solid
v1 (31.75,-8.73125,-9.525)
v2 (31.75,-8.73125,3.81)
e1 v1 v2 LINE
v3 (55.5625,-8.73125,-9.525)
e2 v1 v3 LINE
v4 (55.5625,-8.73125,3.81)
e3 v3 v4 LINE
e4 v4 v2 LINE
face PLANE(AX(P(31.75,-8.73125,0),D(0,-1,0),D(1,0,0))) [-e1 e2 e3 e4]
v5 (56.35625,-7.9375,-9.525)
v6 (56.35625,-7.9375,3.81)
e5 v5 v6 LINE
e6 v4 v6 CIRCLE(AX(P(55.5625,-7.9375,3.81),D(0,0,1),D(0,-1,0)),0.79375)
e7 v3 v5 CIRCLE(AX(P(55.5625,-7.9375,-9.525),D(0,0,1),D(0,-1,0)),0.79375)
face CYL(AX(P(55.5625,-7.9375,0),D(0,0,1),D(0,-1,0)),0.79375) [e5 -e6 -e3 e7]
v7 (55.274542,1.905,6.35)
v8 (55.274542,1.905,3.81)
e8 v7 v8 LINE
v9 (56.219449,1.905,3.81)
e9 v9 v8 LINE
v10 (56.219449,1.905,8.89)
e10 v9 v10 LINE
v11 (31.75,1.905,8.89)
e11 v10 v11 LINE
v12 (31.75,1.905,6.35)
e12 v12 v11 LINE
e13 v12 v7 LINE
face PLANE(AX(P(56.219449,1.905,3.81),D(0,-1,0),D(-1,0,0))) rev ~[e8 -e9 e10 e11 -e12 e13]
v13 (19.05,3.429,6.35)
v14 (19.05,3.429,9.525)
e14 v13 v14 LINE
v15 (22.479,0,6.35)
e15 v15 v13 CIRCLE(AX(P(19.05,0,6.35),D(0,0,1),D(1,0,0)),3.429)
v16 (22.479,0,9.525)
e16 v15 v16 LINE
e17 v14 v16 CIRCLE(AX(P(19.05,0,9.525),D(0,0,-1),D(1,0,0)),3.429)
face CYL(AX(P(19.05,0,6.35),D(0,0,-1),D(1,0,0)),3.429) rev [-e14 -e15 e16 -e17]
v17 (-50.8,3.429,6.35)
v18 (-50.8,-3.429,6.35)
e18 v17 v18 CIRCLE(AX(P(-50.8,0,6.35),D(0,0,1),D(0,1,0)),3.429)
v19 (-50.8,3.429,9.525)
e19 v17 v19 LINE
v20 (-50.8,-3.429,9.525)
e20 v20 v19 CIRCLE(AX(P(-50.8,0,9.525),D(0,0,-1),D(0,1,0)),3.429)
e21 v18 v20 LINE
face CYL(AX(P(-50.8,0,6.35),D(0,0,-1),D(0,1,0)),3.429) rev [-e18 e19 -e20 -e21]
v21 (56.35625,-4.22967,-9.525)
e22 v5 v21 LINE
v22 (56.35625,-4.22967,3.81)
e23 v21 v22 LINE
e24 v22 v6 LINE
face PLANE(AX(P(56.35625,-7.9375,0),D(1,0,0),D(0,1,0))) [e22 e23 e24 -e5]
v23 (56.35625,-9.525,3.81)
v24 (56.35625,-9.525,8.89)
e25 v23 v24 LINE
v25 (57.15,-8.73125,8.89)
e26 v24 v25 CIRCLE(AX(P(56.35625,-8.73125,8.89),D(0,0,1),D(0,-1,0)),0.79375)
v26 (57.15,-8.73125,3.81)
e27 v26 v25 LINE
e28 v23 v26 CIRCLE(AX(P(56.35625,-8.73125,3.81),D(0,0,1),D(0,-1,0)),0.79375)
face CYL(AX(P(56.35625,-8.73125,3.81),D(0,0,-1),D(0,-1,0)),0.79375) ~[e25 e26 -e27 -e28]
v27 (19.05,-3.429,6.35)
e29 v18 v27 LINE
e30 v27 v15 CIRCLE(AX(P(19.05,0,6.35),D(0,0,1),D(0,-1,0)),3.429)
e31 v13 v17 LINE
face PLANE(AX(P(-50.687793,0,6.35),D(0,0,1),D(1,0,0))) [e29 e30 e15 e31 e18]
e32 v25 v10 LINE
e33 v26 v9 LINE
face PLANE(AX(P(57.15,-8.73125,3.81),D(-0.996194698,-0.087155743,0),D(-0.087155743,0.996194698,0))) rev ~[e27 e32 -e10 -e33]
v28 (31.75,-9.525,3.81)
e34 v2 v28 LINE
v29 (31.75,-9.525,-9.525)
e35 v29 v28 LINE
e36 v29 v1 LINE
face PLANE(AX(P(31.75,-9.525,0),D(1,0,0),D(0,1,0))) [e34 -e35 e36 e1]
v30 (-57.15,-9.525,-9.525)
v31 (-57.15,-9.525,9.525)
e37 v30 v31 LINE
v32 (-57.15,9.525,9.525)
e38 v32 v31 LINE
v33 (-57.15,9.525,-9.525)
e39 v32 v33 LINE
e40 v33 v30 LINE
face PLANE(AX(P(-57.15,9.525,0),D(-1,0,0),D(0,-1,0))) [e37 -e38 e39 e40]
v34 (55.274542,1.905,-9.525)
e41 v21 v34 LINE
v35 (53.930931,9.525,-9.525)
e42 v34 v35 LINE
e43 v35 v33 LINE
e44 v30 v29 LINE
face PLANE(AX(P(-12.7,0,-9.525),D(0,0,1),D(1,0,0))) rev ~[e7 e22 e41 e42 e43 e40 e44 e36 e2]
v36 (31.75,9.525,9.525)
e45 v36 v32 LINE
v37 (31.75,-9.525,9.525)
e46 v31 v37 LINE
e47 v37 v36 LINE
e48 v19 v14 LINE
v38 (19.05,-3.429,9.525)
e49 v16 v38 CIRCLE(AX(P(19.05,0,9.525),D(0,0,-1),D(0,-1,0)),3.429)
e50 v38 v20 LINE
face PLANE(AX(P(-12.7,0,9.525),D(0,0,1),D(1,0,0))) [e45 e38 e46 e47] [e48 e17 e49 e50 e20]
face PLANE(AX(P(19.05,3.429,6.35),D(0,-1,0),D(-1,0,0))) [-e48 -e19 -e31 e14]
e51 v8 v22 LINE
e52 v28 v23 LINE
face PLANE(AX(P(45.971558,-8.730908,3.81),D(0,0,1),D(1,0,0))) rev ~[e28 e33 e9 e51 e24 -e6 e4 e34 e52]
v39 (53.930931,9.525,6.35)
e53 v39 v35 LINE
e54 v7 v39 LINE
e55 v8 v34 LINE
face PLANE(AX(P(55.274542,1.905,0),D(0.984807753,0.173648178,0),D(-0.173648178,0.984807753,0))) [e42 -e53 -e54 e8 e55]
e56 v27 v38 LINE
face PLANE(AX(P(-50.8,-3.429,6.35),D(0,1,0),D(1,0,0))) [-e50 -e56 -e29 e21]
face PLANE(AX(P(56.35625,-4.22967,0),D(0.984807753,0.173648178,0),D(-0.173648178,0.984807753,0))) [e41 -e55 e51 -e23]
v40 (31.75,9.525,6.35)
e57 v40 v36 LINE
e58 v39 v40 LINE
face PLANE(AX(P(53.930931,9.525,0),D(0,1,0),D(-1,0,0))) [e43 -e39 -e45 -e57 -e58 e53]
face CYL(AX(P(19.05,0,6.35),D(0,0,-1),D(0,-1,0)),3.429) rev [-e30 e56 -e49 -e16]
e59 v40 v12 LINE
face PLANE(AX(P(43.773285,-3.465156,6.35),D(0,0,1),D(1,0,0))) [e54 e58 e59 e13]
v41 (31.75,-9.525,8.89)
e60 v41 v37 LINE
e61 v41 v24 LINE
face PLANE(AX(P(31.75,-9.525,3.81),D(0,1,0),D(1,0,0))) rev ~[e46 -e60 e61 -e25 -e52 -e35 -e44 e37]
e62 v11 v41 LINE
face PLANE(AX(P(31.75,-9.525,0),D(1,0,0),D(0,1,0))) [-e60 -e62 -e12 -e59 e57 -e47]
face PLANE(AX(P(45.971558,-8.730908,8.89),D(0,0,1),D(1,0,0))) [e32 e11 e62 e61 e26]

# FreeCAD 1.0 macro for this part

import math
import FreeCAD as App
import Part
import Sketcher

V = App.Vector
Q = App.Units.Quantity

doc = App.newDocument("Part")
body = doc.addObject("PartDesign::Body", "Body")

# Sketch on XY plane
sketch1 = doc.addObject("Sketcher::SketchObject", "Sketch")
body.addObject(sketch1)
sketch1.AttachmentSupport = (doc.XY_Plane, [""])
sketch1.MapMode = "FlatFace"
sketch1.addGeometry([
    Part.LineSegment(V(-57.15, 9.525, 0), V(-57.15, -9.525, 0)),  # 0
    Part.LineSegment(V(-57.15, -9.525, 0), V(31.75, -9.525, 0)),  # 1
    Part.LineSegment(V(31.75, -9.525, 0), V(31.75, -8.73125, 0)),  # 2
    Part.LineSegment(V(31.75, -8.73125, 0), V(55.5625, -8.73125, 0)),  # 3
    Part.ArcOfCircle(Part.Circle(V(55.5625, -7.9375, 0), V(0, 0, 1), 0.79375), math.radians(-90), math.radians(0)),  # 4
    Part.LineSegment(V(56.35625, -7.9375, 0), V(56.35625, -4.22967, 0)),  # 5
    Part.LineSegment(V(56.35625, -4.22967, 0), V(55.274542, 1.905, 0)),  # 6
    Part.LineSegment(V(55.274542, 1.905, 0), V(53.930931, 9.525, 0)),  # 7
    Part.LineSegment(V(53.930931, 9.525, 0), V(-57.15, 9.525, 0)),  # 8
], False)
sketch1.addConstraint([
    Sketcher.Constraint("Coincident", 0, 2, 1, 1),
    Sketcher.Constraint("Coincident", 1, 2, 2, 1),
    Sketcher.Constraint("Coincident", 2, 2, 3, 1),
    Sketcher.Constraint("Tangent", 3, 2, 4, 1),
    Sketcher.Constraint("Tangent", 4, 2, 5, 1),
    Sketcher.Constraint("Coincident", 5, 2, 6, 1),
    Sketcher.Constraint("Coincident", 6, 2, 7, 1),
    Sketcher.Constraint("Coincident", 7, 2, 8, 1),
    Sketcher.Constraint("Coincident", 8, 2, 0, 1),
    Sketcher.Constraint("Vertical", 0),
    Sketcher.Constraint("Horizontal", 1),
    Sketcher.Constraint("Vertical", 2),
    Sketcher.Constraint("Horizontal", 3),
    Sketcher.Constraint("Vertical", 5),
    Sketcher.Constraint("Horizontal", 8),
    Sketcher.Constraint("Parallel", 6, 7),
    Sketcher.Constraint("DistanceX", 1, 1, 1, 2, Q("3.5 in")),
    Sketcher.Constraint("Angle", 6, Q("100 deg")),
    Sketcher.Constraint("Radius", 4, Q("0.03125 in")),
    Sketcher.Constraint("DistanceY", 0, 2, 0, 1, Q("0.75 in")),
    Sketcher.Constraint("DistanceY", 6, 2, 7, 2, Q("0.3 in")),
    Sketcher.Constraint("DistanceX", 3, 1, 3, 2, Q("0.9375 in")),
    Sketcher.Constraint("DistanceY", 2, 1, 2, 2, Q("0.03125 in")),
    Sketcher.Constraint("DistanceX", 0, 2, -1, 1, Q("2.25 in")),
    Sketcher.Constraint("DistanceY", 4, 3, -1, 1, Q("0.3125 in")),
    Sketcher.Constraint("DistanceX", 8, 2, 8, 1, Q("111.080931 mm")),
])
pad1 = doc.addObject("PartDesign::Pad", "Pad")
body.addObject(pad1)
pad1.Profile = sketch1
pad1.Length = Q("0.75 in")
pad1.Midplane = True

# Sketch on XY plane
sketch2 = doc.addObject("Sketcher::SketchObject", "Sketch001")
body.addObject(sketch2)
sketch2.AttachmentSupport = (doc.XY_Plane, [""])
sketch2.MapMode = "FlatFace"
sketch2.AttachmentOffset = App.Placement(V(0, 0, 0.25 * 25.4), App.Rotation())
sketch2.addGeometry([
    Part.LineSegment(V(31.75, -8.73125, 0), V(55.5625, -8.73125, 0)),  # 0
    Part.ArcOfCircle(Part.Circle(V(55.5625, -7.9375, 0), V(0, 0, 1), 0.79375), math.radians(-90), math.radians(0)),  # 1
    Part.LineSegment(V(56.35625, -7.9375, 0), V(56.35625, -4.22967, 0)),  # 2
    Part.LineSegment(V(56.35625, -4.22967, 0), V(55.274542, 1.905, 0)),  # 3
    Part.LineSegment(V(55.274542, 1.905, 0), V(53.930931, 9.525, 0)),  # 4
    Part.LineSegment(V(53.930931, 9.525, 0), V(31.75, 9.525, 0)),  # 5
    Part.LineSegment(V(31.75, 9.525, 0), V(31.75, -8.73125, 0)),  # 6
    Part.ArcOfCircle(Part.Circle(V(-50.8, 0, 0), V(0, 0, 1), 3.429), math.radians(90), math.radians(270)),  # 7
    Part.LineSegment(V(-50.8, -3.429, 0), V(19.05, -3.429, 0)),  # 8
    Part.ArcOfCircle(Part.Circle(V(19.05, 0, 0), V(0, 0, 1), 3.429), math.radians(-90), math.radians(0)),  # 9
    Part.ArcOfCircle(Part.Circle(V(19.05, 0, 0), V(0, 0, 1), 3.429), math.radians(0), math.radians(90)),  # 10
    Part.LineSegment(V(19.05, 3.429, 0), V(-50.8, 3.429, 0)),  # 11
], False)
sketch2.addConstraint([
    Sketcher.Constraint("Tangent", 0, 2, 1, 1),
    Sketcher.Constraint("Tangent", 1, 2, 2, 1),
    Sketcher.Constraint("Coincident", 2, 2, 3, 1),
    Sketcher.Constraint("Coincident", 3, 2, 4, 1),
    Sketcher.Constraint("Coincident", 4, 2, 5, 1),
    Sketcher.Constraint("Coincident", 5, 2, 6, 1),
    Sketcher.Constraint("Coincident", 6, 2, 0, 1),
    Sketcher.Constraint("Tangent", 7, 2, 8, 1),
    Sketcher.Constraint("Tangent", 8, 2, 9, 1),
    Sketcher.Constraint("Tangent", 9, 2, 10, 1),
    Sketcher.Constraint("Tangent", 10, 2, 11, 1),
    Sketcher.Constraint("Tangent", 11, 2, 7, 1),
    Sketcher.Constraint("Horizontal", 0),
    Sketcher.Constraint("Vertical", 2),
    Sketcher.Constraint("Horizontal", 5),
    Sketcher.Constraint("Vertical", 6),
    Sketcher.Constraint("Horizontal", 8),
    Sketcher.Constraint("Horizontal", 11),
    Sketcher.Constraint("Equal", 7, 9),
    Sketcher.Constraint("PointOnObject", 7, 3, -1),
    Sketcher.Constraint("PointOnObject", 9, 2, -1),
    Sketcher.Constraint("Parallel", 3, 4),
    Sketcher.Constraint("DistanceX", 7, 3, -1, 1, Q("2 in")),
    Sketcher.Constraint("Angle", 3, Q("100 deg")),
    Sketcher.Constraint("Radius", 1, Q("0.03125 in")),
    Sketcher.Constraint("Radius", 7, Q("0.135 in")),
    Sketcher.Constraint("DistanceX", 8, 1, 8, 2, Q("2.75 in")),
    Sketcher.Constraint("DistanceY", 3, 2, 4, 2, Q("0.3 in")),
    Sketcher.Constraint("DistanceX", 9, 3, 5, 2, Q("0.5 in")),
    Sketcher.Constraint("DistanceX", 0, 1, 0, 2, Q("0.9375 in")),
    Sketcher.Constraint("DistanceY", 6, 2, 6, 1, Q("0.71875 in")),
    Sketcher.Constraint("DistanceY", 7, 2, 5, 2, Q("0.51 in")),
    Sketcher.Constraint("DistanceX", 5, 2, 5, 1, Q("22.180931 mm")),
])
pocket1 = doc.addObject("PartDesign::Pocket", "Pocket")
body.addObject(pocket1)
pocket1.Profile = sketch2
pocket1.Length = Q("0.25 in")
pocket1.Reversed = True

# Sketch on XY plane
sketch3 = doc.addObject("Sketcher::SketchObject", "Sketch002")
body.addObject(sketch3)
sketch3.AttachmentSupport = (doc.XY_Plane, [""])
sketch3.MapMode = "FlatFace"
sketch3.AttachmentOffset = App.Placement(V(0, 0, 0.15 * 25.4), App.Rotation())
sketch3.addGeometry([
    Part.LineSegment(V(31.75, -9.525, 0), V(56.35625, -9.525, 0)),  # 0
    Part.ArcOfCircle(Part.Circle(V(56.35625, -8.73125, 0), V(0, 0, 1), 0.79375), math.radians(-90), math.radians(0)),  # 1
    Part.LineSegment(V(57.15, -8.73125, 0), V(56.219449, 1.905, 0)),  # 2
    Part.LineSegment(V(56.219449, 1.905, 0), V(31.75, 1.905, 0)),  # 3
    Part.LineSegment(V(31.75, 1.905, 0), V(31.75, -9.525, 0)),  # 4
], False)
sketch3.addConstraint([
    Sketcher.Constraint("Tangent", 0, 2, 1, 1),
    Sketcher.Constraint("Coincident", 1, 2, 2, 1),
    Sketcher.Constraint("Coincident", 2, 2, 3, 1),
    Sketcher.Constraint("Coincident", 3, 2, 4, 1),
    Sketcher.Constraint("Coincident", 4, 2, 0, 1),
    Sketcher.Constraint("Horizontal", 0),
    Sketcher.Constraint("Horizontal", 3),
    Sketcher.Constraint("Vertical", 4),
    Sketcher.Constraint("Angle", 2, Q("95 deg")),
    Sketcher.Constraint("Radius", 1, Q("0.03125 in")),
    Sketcher.Constraint("DistanceX", 3, 2, 1, 2, Q("1 in")),
    Sketcher.Constraint("DistanceY", 4, 2, 4, 1, Q("0.45 in")),
    Sketcher.Constraint("DistanceX", -1, 1, 1, 2, Q("2.25 in")),
    Sketcher.Constraint("DistanceY", 1, 3, -1, 1, Q("0.34375 in")),
    Sketcher.Constraint("DistanceY", 1, 2, -1, 1, Q("0.34375 in")),
])
pad2 = doc.addObject("PartDesign::Pad", "Pad001")
body.addObject(pad2)
pad2.Profile = sketch3
pad2.Length = Q("0.2 in")

doc.recompute()
